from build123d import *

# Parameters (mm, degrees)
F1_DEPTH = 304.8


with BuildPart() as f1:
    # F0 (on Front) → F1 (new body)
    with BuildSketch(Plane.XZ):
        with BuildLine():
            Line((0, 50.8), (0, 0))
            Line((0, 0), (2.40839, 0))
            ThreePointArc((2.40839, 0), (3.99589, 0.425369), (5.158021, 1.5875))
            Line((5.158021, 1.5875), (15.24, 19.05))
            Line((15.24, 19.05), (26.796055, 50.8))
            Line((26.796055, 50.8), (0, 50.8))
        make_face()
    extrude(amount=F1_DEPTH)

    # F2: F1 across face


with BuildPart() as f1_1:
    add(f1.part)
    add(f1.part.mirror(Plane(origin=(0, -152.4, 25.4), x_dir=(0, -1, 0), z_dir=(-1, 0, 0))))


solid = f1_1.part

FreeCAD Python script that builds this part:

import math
import FreeCAD as App
import Part
import Sketcher

V = App.Vector
Q = App.Units.Quantity

doc = App.newDocument("Part")
body = doc.addObject("PartDesign::Body", "Body")

# Sketch on XZ plane
sketch1 = body.newObject("Sketcher::SketchObject", "Sketch")
sketch1.AttachmentSupport = (doc.getObject("XZ_Plane"), [""])
sketch1.MapMode = "FlatFace"
sketch1.addGeometry([
    Part.LineSegment(V(0, 50.8, 0), V(0, 0, 0)),  # 0
    Part.LineSegment(V(0, 0, 0), V(2.40839, 0, 0)),  # 1
    Part.ArcOfCircle(Part.Circle(V(2.408391, 3.174999, 0), V(0, 0, 1), 3.174999), math.radians(-90.000015), math.radians(-29.999992)),  # 2
    Part.LineSegment(V(5.158021, 1.5875, 0), V(15.24, 19.05, 0)),  # 3
    Part.LineSegment(V(15.24, 19.05, 0), V(26.796055, 50.8, 0)),  # 4
    Part.LineSegment(V(26.796055, 50.8, 0), V(0, 50.8, 0)),  # 5
], False)
sketch1.addConstraint([
    Sketcher.Constraint("Coincident", 0, 2, 1, 1),
    Sketcher.Constraint("Tangent", 1, 2, 2, 1),
    Sketcher.Constraint("Tangent", 2, 2, 3, 1),
    Sketcher.Constraint("Coincident", 3, 2, 4, 1),
    Sketcher.Constraint("Coincident", 4, 2, 5, 1),
    Sketcher.Constraint("Coincident", 5, 2, 0, 1),
    Sketcher.Constraint("Vertical", 0),
    Sketcher.Constraint("Horizontal", 1),
    Sketcher.Constraint("Horizontal", 5),
    Sketcher.Constraint("Coincident", 0, 2, -1, 1),
    Sketcher.Constraint("DistanceY", 0, 2, 0, 1, Q("2 in")),
    Sketcher.Constraint("Angle", 3, Q("60 deg")),
    Sketcher.Constraint("Angle", 4, Q("70 deg")),
    Sketcher.Constraint("Radius", 2, Q("0.125 in")),
    Sketcher.Constraint("DistanceX", -1, 1, 3, 2, Q("0.6 in")),
    Sketcher.Constraint("DistanceY", -1, 1, 3, 2, Q("0.75 in")),
])
pad1 = body.newObject("PartDesign::Pad", "Pad")
pad1.Profile = sketch1
pad1.Length = Q("12 in")
body2 = doc.addObject("PartDesign::Body", "Body001")
doc.recompute()

body2.BaseFeature = body
doc.recompute()

mirroring = doc.addObject("Part::Mirroring", "Mirroring")
mirroring.Source = body
mirroring.Base = V(0, -152.4, 25.4)
mirroring.Normal = V(-1, 0, 0)
body3 = doc.addObject("PartDesign::Body", "Body002")
body3.BaseFeature = mirroring
boolean = body2.newObject("PartDesign::Boolean", "Boolean")
boolean.Type = "Fuse"
boolean.addObjects([body3])
doc.recompute()
mirroring.Visibility = False

doc.recompute()
